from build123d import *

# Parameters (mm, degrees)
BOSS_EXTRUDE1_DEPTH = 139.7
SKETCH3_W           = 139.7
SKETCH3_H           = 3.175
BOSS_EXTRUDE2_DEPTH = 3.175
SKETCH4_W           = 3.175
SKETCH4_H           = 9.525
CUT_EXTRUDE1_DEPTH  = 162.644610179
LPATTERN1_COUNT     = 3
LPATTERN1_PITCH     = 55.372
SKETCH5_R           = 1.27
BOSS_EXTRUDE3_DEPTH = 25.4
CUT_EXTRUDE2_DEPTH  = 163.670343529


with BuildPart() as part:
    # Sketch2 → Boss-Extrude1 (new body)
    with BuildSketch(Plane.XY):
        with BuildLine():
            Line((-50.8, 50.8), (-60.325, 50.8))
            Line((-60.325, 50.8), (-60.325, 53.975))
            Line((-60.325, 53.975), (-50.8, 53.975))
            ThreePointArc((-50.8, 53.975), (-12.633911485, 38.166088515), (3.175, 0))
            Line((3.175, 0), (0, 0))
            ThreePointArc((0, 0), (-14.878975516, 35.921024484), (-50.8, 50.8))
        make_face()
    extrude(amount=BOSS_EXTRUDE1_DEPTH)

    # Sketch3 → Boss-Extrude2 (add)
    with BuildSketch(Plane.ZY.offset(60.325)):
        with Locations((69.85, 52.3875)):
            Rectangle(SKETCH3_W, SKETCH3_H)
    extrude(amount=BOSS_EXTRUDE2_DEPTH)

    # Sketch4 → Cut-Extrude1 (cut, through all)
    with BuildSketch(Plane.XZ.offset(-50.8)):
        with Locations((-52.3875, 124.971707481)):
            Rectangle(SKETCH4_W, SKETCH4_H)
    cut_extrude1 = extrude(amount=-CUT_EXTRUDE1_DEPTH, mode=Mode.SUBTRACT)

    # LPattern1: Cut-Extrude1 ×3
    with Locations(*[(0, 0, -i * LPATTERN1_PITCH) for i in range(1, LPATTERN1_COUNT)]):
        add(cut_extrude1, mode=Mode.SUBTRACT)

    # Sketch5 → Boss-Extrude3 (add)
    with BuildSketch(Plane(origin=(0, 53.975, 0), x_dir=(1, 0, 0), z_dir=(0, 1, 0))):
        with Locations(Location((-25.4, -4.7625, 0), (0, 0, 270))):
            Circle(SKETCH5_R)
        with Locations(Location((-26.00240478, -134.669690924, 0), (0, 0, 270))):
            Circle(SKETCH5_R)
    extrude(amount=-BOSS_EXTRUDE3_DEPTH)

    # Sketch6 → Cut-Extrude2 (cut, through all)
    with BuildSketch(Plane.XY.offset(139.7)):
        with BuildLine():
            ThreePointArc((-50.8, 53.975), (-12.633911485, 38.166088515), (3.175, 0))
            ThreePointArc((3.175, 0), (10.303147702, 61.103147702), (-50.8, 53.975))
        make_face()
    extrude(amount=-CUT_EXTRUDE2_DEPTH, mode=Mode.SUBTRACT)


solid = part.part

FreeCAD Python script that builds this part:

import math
import FreeCAD as App
import Part
import Sketcher

V = App.Vector
Q = App.Units.Quantity


def add_polygon(sketch, points):
    """Adds a closed chain of lines whose ends are joined by coincident constraints."""
    first, n = sketch.GeometryCount, len(points)
    for a, b in zip(points, points[1:] + points[:1]):
        sketch.addGeometry(Part.LineSegment(App.Vector(*a, 0), App.Vector(*b, 0)), False)
    for i in range(n):
        sketch.addConstraint(Sketcher.Constraint("Coincident", first + i, 2, first + (i + 1) % n, 1))

doc = App.newDocument("Part")
body = doc.addObject("PartDesign::Body", "Body")

# Sketch on XY plane
sketch1 = body.newObject("Sketcher::SketchObject", "Sketch")
sketch1.AttachmentSupport = (doc.getObject("XY_Plane"), [""])
sketch1.MapMode = "FlatFace"
sketch1.addGeometry([
    Part.LineSegment(V(-60.3, 50.8, 0), V(-50.8, 50.8, 0)),  # 0
    Part.ArcOfCircle(Part.Circle(V(-50.8, 0, 0), V(0, 0, 1), 50.8), math.radians(0), math.radians(90)),  # 1
    Part.LineSegment(V(0, 0, 0), V(3.2, 0, 0)),  # 2
    Part.ArcOfCircle(Part.Circle(V(-50.8, 0, 0), V(0, 0, 1), 54), math.radians(0), math.radians(90)),  # 3
    Part.LineSegment(V(-50.8, 54, 0), V(-60.3, 54, 0)),  # 4
    Part.LineSegment(V(-60.3, 54, 0), V(-60.3, 50.8, 0)),  # 5
], False)
sketch1.addConstraint([
    Sketcher.Constraint("Tangent", 0, 2, 1, 2),
    Sketcher.Constraint("Coincident", 1, 1, 2, 1),
    Sketcher.Constraint("Coincident", 2, 2, 3, 1),
    Sketcher.Constraint("Tangent", 3, 2, 4, 1),
    Sketcher.Constraint("Coincident", 4, 2, 5, 1),
    Sketcher.Constraint("Coincident", 5, 2, 0, 1),
    Sketcher.Constraint("Horizontal", 0),
    Sketcher.Constraint("Horizontal", 2),
    Sketcher.Constraint("Horizontal", 4),
    Sketcher.Constraint("Vertical", 5),
    Sketcher.Constraint("Coincident", 1, 1, -1, 1),
    Sketcher.Constraint("Coincident", 3, 3, 1, 3),
    Sketcher.Constraint("PointOnObject", 1, 3, -1),
    Sketcher.Constraint("Radius", 1, Q("2 in")),
    Sketcher.Constraint("Radius", 3, Q("2.125 in")),
    Sketcher.Constraint("DistanceX", 0, 1, 0, 2, Q("0.375 in")),
])
pad1 = body.newObject("PartDesign::Pad", "Pad")
pad1.Profile = sketch1
pad1.Length = Q("5.5 in")

# Sketch on YZ plane
sketch2 = body.newObject("Sketcher::SketchObject", "Sketch001")
sketch2.AttachmentSupport = (doc.getObject("YZ_Plane"), [""])
sketch2.MapMode = "FlatFace"
sketch2.AttachmentOffset = App.Placement(V(0, 0, -2.375 * 25.4), App.Rotation())
add_polygon(sketch2, [(54, 0), (50.8, 0), (50.8, 139.7), (54, 139.7)])  # lines 0-3
sketch2.addConstraint([
    Sketcher.Constraint("Horizontal", 0),
    Sketcher.Constraint("Vertical", 1),
    Sketcher.Constraint("Horizontal", 2),
    Sketcher.Constraint("Vertical", 3),
    Sketcher.Constraint("PointOnObject", 0, 2, -1),
    Sketcher.Constraint("DistanceY", 1, 1, 1, 2, Q("5.5 in")),
    Sketcher.Constraint("DistanceX", -1, 1, 0, 2, Q("2 in")),
    Sketcher.Constraint("DistanceX", 0, 2, 0, 1, Q("0.125 in")),
])
pad2 = body.newObject("PartDesign::Pad", "Pad001")
pad2.Profile = sketch2
pad2.Length = Q("0.125 in")
pad2.Reversed = True

# Sketch on XZ plane
sketch3 = body.newObject("Sketcher::SketchObject", "Sketch002")
sketch3.AttachmentSupport = (doc.getObject("XZ_Plane"), [""])
sketch3.MapMode = "FlatFace"
sketch3.AttachmentOffset = App.Placement(V(0, 0, -2 * 25.4), App.Rotation())
add_polygon(sketch3, [(-54, 129.7), (-54, 120.2), (-50.8, 120.2), (-50.8, 129.7)])  # lines 0-3
sketch3.addConstraint([
    Sketcher.Constraint("Vertical", 0),
    Sketcher.Constraint("Horizontal", 1),
    Sketcher.Constraint("Vertical", 2),
    Sketcher.Constraint("Horizontal", 3),
    Sketcher.Constraint("DistanceX", 1, 2, -1, 1, Q("2 in")),
    Sketcher.Constraint("DistanceX", 1, 1, 1, 2, Q("0.125 in")),
    Sketcher.Constraint("DistanceY", 0, 2, 0, 1, Q("0.375 in")),
    Sketcher.Constraint("DistanceY", -1, 1, 0, 2, 120.209207),
])
pocket1 = body.newObject("PartDesign::Pocket", "Pocket")
pocket1.Profile = sketch3
pocket1.Type = "ThroughAll"
doc.recompute()

linearpattern = body.newObject("PartDesign::LinearPattern", "LinearPattern")
linearpattern.Originals = [pocket1]
linearpattern.Direction = (doc.getObject("Z_Axis"), [""])
linearpattern.Mode = "offset"
linearpattern.Offset = Q("2.18 in")
linearpattern.Occurrences = 3
linearpattern.Reversed = True
body.Tip = linearpattern

# Sketch on XZ plane
sketch4 = body.newObject("Sketcher::SketchObject", "Sketch003")
sketch4.AttachmentSupport = (doc.getObject("XZ_Plane"), [""])
sketch4.MapMode = "FlatFace"
sketch4.AttachmentOffset = App.Placement(V(0, 0, -2.125 * 25.4), App.Rotation())
sketch4.addGeometry([
    Part.Circle(V(-25.4, 4.8, 0), V(0, 0, 1), 1.3),
    Part.Circle(V(-26, 134.7, 0), V(0, 0, 1), 1.3),
], False)
sketch4.addConstraint([
    Sketcher.Constraint("Equal", 0, 1),
    Sketcher.Constraint("Diameter", 0, Q("0.1 in")),
    Sketcher.Constraint("DistanceX", 0, 3, -1, 1, Q("1 in")),
    Sketcher.Constraint("DistanceY", -1, 1, 0, 3, Q("0.1875 in")),
    Sketcher.Constraint("DistanceY", -1, 1, 1, 3, 134.669691),
    Sketcher.Constraint("DistanceX", 1, 3, -1, 1, 26.002405),
])
pad3 = body.newObject("PartDesign::Pad", "Pad002")
pad3.Profile = sketch4
pad3.Length = Q("1 in")

# Sketch on XY plane
sketch5 = body.newObject("Sketcher::SketchObject", "Sketch004")
sketch5.AttachmentSupport = (doc.getObject("XY_Plane"), [""])
sketch5.MapMode = "FlatFace"
sketch5.AttachmentOffset = App.Placement(V(0, 0, 5.5 * 25.4), App.Rotation())
sketch5.addGeometry([
    Part.ArcOfCircle(Part.Circle(V(-51, 0, 0), V(0, 0, 1), 54), math.radians(0), math.radians(90)),
    Part.ArcOfCircle(Part.Circle(V(-17, 33, 0), V(0, 0, 1), 39), math.radians(-58), math.radians(148)),
], False)
sketch5.addConstraint([
    Sketcher.Constraint("Coincident", 0, 1, 1, 1),
    Sketcher.Constraint("Coincident", 1, 2, 0, 2),
    Sketcher.Constraint("PointOnObject", 0, 3, -1),
    Sketcher.Constraint("PointOnObject", 0, 1, -1),
    Sketcher.Constraint("Vertical", 0, 3, 1, 2),
    Sketcher.Constraint("DistanceX", 0, 3, -1, 1, Q("2 in")),
    Sketcher.Constraint("Radius", 0, Q("2.125 in")),
    Sketcher.Constraint("Radius", 1, 39.219225),
])
pocket2 = body.newObject("PartDesign::Pocket", "Pocket001")
pocket2.Profile = sketch5
pocket2.Type = "ThroughAll"

doc.recompute()
